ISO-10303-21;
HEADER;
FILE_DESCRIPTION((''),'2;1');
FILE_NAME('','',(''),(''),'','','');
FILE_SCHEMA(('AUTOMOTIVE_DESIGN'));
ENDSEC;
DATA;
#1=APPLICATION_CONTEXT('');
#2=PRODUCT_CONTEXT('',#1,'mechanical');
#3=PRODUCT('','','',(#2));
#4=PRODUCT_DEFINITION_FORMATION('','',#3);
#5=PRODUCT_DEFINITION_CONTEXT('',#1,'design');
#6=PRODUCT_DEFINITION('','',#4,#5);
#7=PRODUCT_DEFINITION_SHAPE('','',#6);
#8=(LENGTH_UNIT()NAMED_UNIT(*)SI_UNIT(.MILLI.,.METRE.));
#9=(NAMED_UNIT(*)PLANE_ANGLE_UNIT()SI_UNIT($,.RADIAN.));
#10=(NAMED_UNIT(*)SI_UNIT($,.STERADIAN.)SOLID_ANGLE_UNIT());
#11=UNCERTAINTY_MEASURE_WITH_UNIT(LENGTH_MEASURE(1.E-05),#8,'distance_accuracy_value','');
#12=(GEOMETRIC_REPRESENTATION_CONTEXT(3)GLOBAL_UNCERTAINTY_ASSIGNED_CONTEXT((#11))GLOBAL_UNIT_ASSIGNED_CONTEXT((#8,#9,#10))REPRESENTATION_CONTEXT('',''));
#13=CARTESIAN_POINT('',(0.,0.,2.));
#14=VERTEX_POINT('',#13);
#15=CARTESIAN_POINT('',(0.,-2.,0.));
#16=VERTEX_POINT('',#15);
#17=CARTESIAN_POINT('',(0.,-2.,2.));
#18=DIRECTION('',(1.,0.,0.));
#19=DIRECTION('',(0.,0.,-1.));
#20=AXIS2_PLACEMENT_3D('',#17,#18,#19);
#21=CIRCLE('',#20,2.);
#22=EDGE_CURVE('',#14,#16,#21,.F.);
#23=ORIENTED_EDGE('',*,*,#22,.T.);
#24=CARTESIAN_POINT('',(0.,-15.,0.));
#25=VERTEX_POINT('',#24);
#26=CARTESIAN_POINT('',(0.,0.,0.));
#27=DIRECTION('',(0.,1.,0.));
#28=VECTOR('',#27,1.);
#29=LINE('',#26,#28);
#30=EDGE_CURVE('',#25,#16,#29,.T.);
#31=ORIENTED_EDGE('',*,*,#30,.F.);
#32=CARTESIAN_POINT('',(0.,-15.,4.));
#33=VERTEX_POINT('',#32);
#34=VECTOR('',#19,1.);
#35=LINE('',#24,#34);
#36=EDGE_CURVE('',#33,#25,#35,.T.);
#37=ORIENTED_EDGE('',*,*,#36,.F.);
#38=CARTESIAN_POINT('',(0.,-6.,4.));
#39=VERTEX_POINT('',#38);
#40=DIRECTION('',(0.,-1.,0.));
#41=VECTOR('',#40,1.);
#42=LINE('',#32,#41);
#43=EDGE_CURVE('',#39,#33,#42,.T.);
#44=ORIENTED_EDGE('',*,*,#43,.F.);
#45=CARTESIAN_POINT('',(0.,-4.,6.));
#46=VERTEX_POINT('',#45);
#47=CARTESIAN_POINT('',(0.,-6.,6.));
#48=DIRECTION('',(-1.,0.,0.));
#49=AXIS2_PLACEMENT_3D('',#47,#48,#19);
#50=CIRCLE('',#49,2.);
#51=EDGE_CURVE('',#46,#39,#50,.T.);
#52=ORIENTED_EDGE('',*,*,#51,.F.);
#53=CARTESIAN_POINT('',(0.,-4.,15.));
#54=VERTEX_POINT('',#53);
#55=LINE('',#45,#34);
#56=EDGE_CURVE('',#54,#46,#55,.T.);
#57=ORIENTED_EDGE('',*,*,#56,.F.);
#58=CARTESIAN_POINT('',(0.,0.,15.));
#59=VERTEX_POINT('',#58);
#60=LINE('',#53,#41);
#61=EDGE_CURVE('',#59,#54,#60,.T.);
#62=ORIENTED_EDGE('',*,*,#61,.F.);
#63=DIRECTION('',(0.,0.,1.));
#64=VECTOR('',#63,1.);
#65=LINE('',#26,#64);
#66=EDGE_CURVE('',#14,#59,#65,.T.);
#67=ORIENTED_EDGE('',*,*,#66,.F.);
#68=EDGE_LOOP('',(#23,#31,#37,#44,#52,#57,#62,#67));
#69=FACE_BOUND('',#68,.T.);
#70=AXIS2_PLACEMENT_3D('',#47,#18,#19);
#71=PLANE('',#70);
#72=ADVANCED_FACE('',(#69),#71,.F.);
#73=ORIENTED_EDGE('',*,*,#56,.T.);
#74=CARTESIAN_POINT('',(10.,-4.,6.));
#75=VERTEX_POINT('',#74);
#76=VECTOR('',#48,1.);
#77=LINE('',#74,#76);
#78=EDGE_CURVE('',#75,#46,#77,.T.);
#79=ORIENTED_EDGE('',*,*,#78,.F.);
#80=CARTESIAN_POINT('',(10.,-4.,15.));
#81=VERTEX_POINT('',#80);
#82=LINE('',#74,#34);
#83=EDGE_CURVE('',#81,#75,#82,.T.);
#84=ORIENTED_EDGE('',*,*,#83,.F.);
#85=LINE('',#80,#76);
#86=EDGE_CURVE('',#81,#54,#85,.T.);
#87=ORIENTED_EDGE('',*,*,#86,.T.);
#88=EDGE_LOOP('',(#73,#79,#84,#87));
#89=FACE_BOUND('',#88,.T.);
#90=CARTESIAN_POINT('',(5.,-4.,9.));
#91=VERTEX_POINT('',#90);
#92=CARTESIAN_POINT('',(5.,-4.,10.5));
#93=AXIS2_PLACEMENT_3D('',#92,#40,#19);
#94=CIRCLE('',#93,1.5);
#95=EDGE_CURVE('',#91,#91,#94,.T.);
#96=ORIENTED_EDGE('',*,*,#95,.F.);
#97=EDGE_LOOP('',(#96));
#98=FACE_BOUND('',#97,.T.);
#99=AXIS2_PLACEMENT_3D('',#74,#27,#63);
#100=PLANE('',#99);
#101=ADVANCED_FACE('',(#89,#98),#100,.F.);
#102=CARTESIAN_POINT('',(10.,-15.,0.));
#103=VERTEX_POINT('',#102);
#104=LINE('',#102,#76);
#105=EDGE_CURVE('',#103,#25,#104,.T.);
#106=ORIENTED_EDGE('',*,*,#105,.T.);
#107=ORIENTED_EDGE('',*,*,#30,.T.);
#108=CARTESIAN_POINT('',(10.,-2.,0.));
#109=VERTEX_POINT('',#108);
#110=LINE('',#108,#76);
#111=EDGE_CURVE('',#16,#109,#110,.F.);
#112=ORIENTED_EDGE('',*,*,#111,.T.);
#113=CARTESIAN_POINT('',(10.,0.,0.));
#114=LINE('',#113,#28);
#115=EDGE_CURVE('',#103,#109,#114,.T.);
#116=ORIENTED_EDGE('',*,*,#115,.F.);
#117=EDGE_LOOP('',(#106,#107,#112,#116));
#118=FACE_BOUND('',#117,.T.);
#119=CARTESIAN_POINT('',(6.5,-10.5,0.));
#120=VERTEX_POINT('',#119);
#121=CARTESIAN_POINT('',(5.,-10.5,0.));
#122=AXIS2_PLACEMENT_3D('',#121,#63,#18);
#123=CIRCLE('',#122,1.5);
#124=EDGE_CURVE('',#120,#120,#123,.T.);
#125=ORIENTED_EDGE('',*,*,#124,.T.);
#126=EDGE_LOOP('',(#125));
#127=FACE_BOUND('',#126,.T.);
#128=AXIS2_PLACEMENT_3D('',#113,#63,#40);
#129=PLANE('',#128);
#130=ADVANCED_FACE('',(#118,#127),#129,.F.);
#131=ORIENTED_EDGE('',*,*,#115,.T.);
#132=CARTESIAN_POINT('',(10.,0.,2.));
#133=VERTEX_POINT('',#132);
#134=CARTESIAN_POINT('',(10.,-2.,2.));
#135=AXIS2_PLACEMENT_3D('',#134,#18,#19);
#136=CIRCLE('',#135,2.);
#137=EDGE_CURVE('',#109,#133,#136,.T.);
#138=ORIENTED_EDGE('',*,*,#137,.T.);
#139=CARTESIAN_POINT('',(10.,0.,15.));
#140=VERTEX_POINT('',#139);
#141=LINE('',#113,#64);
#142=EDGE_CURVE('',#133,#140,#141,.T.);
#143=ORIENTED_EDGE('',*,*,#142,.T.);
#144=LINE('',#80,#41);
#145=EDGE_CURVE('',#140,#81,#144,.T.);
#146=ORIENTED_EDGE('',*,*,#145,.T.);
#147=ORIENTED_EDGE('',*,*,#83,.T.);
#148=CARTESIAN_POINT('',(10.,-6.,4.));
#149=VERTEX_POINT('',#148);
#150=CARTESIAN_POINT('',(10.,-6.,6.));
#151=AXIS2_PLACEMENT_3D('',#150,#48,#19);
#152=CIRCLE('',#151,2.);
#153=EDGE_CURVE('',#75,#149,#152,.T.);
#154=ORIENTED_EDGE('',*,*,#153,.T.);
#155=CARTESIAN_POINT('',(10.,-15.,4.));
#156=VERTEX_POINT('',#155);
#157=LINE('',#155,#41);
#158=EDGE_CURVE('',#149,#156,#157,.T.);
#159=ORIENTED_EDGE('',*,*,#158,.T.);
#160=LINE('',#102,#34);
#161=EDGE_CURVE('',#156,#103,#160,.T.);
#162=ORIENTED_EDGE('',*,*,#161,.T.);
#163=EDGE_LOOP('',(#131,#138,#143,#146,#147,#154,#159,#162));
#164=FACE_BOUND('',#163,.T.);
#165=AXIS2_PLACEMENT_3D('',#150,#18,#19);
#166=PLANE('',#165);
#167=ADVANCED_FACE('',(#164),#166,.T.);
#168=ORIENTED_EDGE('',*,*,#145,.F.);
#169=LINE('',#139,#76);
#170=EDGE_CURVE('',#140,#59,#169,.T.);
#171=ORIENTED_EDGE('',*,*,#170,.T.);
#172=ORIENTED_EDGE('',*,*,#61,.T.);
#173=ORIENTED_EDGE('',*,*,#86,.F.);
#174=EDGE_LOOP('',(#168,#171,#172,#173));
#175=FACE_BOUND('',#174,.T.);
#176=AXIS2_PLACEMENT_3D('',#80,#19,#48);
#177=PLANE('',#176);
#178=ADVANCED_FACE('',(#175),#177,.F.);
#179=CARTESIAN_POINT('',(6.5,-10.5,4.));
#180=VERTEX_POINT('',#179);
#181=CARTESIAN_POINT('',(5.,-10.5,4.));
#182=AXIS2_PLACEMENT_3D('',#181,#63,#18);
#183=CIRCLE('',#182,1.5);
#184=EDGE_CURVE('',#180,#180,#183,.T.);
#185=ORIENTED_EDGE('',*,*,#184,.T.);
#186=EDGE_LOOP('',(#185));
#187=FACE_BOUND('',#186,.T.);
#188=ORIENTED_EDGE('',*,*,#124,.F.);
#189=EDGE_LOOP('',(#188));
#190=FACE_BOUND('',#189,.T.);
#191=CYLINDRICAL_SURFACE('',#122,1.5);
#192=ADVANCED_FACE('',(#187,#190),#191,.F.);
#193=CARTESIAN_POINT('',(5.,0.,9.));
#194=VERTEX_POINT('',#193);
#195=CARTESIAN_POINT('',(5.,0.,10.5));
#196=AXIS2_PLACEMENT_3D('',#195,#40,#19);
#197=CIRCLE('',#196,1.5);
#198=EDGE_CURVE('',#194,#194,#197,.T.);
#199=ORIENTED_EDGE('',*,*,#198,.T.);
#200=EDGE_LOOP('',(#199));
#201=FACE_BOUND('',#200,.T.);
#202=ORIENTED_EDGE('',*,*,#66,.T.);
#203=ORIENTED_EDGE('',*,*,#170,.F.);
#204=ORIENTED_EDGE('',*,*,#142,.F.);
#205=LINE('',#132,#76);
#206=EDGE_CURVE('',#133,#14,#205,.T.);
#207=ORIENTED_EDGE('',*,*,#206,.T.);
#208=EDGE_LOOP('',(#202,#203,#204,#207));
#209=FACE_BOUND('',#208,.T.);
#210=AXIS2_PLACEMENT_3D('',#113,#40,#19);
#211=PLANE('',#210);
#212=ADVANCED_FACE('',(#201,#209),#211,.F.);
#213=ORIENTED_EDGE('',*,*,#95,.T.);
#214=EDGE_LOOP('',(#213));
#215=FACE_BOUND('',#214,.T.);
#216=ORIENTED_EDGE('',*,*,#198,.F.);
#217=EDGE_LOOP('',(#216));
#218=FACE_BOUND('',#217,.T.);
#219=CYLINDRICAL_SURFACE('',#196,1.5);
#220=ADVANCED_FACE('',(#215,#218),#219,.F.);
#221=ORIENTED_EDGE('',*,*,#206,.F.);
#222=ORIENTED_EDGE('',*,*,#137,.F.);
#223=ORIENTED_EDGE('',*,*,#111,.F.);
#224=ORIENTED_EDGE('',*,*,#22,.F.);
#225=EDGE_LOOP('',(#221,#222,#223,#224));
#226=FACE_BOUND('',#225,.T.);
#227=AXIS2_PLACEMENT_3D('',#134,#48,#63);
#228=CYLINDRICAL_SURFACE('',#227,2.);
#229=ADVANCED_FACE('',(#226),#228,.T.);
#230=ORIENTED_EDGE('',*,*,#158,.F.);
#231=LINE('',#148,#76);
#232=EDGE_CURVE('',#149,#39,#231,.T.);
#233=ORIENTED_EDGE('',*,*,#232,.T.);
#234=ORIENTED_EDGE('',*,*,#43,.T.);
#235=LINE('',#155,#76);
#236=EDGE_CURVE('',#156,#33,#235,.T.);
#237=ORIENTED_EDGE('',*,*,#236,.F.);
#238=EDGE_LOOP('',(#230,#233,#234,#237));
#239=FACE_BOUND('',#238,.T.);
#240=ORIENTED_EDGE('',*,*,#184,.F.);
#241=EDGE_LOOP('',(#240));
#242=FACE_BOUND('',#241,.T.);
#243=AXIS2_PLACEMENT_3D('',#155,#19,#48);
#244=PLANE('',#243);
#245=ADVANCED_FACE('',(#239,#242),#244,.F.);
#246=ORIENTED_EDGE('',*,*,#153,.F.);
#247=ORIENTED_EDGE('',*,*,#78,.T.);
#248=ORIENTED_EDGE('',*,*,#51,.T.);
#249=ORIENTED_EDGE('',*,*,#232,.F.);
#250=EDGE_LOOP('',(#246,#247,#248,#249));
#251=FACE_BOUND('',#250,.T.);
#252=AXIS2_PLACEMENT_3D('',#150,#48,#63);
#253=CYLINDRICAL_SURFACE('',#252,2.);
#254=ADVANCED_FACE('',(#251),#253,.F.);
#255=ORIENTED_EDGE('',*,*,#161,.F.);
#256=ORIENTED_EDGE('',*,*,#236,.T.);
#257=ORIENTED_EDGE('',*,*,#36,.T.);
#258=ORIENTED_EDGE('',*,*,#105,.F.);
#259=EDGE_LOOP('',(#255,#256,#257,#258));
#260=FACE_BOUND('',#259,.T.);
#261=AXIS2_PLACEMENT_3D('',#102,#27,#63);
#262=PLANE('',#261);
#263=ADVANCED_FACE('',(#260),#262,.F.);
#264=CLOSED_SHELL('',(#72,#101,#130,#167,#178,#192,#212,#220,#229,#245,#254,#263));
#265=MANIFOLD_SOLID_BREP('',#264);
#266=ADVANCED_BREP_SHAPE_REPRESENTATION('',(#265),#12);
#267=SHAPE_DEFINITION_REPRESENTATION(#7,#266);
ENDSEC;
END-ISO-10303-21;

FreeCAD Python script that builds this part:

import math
import FreeCAD as App
import Part
import Sketcher


def edges_at(feature, points):
    """Names of the edges that pass closest to the given points."""
    edges = feature.Shape.Edges
    near = lambda p: min(range(len(edges)), key=lambda i: edges[i].distToShape(Part.Vertex(*p))[0])
    return sorted({f"Edge{near(p) + 1}" for p in points})

doc = App.newDocument("Part")
body = doc.addObject("PartDesign::Body", "Body")

sketch1 = doc.addObject("Sketcher::SketchObject", "Sketch")
body.addObject(sketch1)
sketch1.AttachmentSupport = (doc.YZ_Plane, [""])
sketch1.MapMode = "FlatFace"
sketch1.addGeometry(Part.LineSegment(App.Vector(0, 0, 0), App.Vector(0, 15, 0)), False)
sketch1.addGeometry(Part.LineSegment(App.Vector(0, 15, 0), App.Vector(-4, 15, 0)), False)
sketch1.addGeometry(Part.LineSegment(App.Vector(-4, 15, 0), App.Vector(-4, 6, 0)), False)
sketch1.addGeometry(Part.ArcOfCircle(Part.Circle(App.Vector(-6, 6, 0), App.Vector(0, 0, 1), 2), math.radians(-90), math.radians(0)), False)
sketch1.addGeometry(Part.LineSegment(App.Vector(-6, 4, 0), App.Vector(-15, 4, 0)), False)
sketch1.addGeometry(Part.LineSegment(App.Vector(-15, 4, 0), App.Vector(-15, 0, 0)), False)
sketch1.addGeometry(Part.LineSegment(App.Vector(-15, 0, 0), App.Vector(0, 0, 0)), False)
sketch1.addConstraint(Sketcher.Constraint("Coincident", 0, 2, 1, 1))
sketch1.addConstraint(Sketcher.Constraint("Coincident", 1, 2, 2, 1))
sketch1.addConstraint(Sketcher.Constraint("Tangent", 2, 2, 3, 2))
sketch1.addConstraint(Sketcher.Constraint("Tangent", 3, 1, 4, 1))
sketch1.addConstraint(Sketcher.Constraint("Coincident", 4, 2, 5, 1))
sketch1.addConstraint(Sketcher.Constraint("Coincident", 5, 2, 6, 1))
sketch1.addConstraint(Sketcher.Constraint("Coincident", 6, 2, 0, 1))
sketch1.addConstraint(Sketcher.Constraint("Vertical", 0))
sketch1.addConstraint(Sketcher.Constraint("Horizontal", 1))
sketch1.addConstraint(Sketcher.Constraint("Vertical", 2))
sketch1.addConstraint(Sketcher.Constraint("Horizontal", 4))
sketch1.addConstraint(Sketcher.Constraint("Vertical", 5))
sketch1.addConstraint(Sketcher.Constraint("Horizontal", 6))
sketch1.addConstraint(Sketcher.Constraint("Coincident", 6, 2, -1, 1))
sketch1.addConstraint(Sketcher.Constraint("Equal", 6, 0))
sketch1.addConstraint(Sketcher.Constraint("Equal", 4, 2))
sketch1.addConstraint(Sketcher.Constraint("Radius", 3, 2.0))
sketch1.addConstraint(Sketcher.Constraint("DistanceX", 1, 2, 1, 1, 4.0))
sketch1.addConstraint(Sketcher.Constraint("DistanceX", 4, 2, 4, 1, 9.0))
pad1 = doc.addObject("PartDesign::Pad", "Pad")
body.addObject(pad1)
pad1.Profile = sketch1
pad1.Length = 10

sketch2 = doc.addObject("Sketcher::SketchObject", "Sketch001")
body.addObject(sketch2)
sketch2.AttachmentSupport = (doc.XZ_Plane, [""])
sketch2.MapMode = "FlatFace"
sketch2.AttachmentOffset = App.Placement(App.Vector(0, 0, 4), App.Rotation())
sketch2.addGeometry(Part.Circle(App.Vector(5, 10.5, 0), App.Vector(0, 0, 1), 1.5), False)
sketch2.addConstraint(Sketcher.Constraint("Diameter", 0, 3.0))
sketch2.addConstraint(Sketcher.Constraint("DistanceX", -1, 1, 0, 3, 5.0))
sketch2.addConstraint(Sketcher.Constraint("DistanceY", -1, 1, 0, 3, 10.5))
pocket1 = doc.addObject("PartDesign::Pocket", "Pocket")
body.addObject(pocket1)
pocket1.Profile = sketch2
pocket1.Type = "ThroughAll"

sketch3 = doc.addObject("Sketcher::SketchObject", "Sketch002")
body.addObject(sketch3)
sketch3.AttachmentSupport = (doc.XY_Plane, [""])
sketch3.MapMode = "FlatFace"
sketch3.AttachmentOffset = App.Placement(App.Vector(0, 0, 4), App.Rotation())
sketch3.addGeometry(Part.Circle(App.Vector(5, -10.5, 0), App.Vector(0, 0, 1), 1.5), False)
sketch3.addConstraint(Sketcher.Constraint("Diameter", 0, 3.0))
sketch3.addConstraint(Sketcher.Constraint("DistanceX", -1, 1, 0, 3, 5.0))
sketch3.addConstraint(Sketcher.Constraint("DistanceY", 0, 3, -1, 1, 10.5))
pocket2 = doc.addObject("PartDesign::Pocket", "Pocket001")
body.addObject(pocket2)
pocket2.Profile = sketch3
pocket2.Type = "ThroughAll"
doc.recompute()

fillet = doc.addObject("PartDesign::Fillet", "Fillet")
body.addObject(fillet)
fillet.Base = (pocket2, edges_at(pocket2, [(5, 0, 0)]))
fillet.Radius = 2

doc.recompute()
